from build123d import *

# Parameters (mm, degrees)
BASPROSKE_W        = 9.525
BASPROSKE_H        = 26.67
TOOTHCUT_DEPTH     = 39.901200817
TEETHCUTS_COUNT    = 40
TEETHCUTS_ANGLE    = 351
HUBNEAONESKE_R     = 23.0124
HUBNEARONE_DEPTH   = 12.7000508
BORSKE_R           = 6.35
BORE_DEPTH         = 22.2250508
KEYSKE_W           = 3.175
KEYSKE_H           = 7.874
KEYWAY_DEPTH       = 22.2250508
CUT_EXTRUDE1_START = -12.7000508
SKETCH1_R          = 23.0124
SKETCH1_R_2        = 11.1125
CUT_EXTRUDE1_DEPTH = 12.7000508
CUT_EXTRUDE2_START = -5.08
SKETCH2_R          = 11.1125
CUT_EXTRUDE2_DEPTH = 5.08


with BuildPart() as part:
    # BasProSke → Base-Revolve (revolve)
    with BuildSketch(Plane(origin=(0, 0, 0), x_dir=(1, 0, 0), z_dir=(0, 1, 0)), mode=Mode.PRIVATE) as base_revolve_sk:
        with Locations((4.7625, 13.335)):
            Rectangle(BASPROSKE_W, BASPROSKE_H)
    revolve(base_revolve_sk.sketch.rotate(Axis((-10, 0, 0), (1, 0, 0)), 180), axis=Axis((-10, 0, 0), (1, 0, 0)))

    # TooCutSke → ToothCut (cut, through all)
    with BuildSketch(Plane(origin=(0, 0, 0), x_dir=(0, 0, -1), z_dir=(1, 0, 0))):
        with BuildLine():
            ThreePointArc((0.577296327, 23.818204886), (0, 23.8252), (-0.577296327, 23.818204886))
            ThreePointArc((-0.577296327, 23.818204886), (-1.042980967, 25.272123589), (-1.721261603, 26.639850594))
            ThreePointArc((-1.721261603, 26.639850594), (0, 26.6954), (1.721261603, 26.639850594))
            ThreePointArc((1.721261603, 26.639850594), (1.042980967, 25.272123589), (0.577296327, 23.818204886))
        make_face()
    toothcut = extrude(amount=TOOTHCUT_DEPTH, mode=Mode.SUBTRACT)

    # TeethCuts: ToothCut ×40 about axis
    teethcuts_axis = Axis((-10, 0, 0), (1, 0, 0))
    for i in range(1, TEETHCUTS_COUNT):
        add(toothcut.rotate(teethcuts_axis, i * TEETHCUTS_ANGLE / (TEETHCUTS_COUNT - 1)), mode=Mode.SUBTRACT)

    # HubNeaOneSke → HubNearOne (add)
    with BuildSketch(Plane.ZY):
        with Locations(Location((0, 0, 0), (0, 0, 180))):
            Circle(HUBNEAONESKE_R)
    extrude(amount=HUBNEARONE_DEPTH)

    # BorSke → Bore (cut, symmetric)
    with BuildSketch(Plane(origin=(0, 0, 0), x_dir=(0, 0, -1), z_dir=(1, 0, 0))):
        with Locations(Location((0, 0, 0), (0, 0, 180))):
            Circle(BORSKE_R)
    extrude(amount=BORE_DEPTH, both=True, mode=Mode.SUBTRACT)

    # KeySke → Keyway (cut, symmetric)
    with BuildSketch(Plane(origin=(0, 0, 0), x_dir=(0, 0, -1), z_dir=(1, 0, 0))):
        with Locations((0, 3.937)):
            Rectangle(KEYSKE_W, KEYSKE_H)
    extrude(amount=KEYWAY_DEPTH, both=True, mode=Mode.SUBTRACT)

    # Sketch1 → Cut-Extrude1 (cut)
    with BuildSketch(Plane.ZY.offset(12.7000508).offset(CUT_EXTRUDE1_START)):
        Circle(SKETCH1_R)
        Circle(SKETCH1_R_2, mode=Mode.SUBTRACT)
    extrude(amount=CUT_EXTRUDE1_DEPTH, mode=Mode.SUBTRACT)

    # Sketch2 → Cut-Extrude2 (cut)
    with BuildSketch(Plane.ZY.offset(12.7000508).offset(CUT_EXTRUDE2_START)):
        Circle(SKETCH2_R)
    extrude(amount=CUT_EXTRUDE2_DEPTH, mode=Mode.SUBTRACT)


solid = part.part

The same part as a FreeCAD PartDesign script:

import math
import FreeCAD as App
import Part
import Sketcher
Q = App.Units.Quantity


def add_polygon(sketch, points):
    """Adds a closed chain of lines whose ends are joined by coincident constraints."""
    first, n = sketch.GeometryCount, len(points)
    for a, b in zip(points, points[1:] + points[:1]):
        sketch.addGeometry(Part.LineSegment(App.Vector(*a, 0), App.Vector(*b, 0)), False)
    for i in range(n):
        sketch.addConstraint(Sketcher.Constraint("Coincident", first + i, 2, first + (i + 1) % n, 1))

doc = App.newDocument("Part")
body = doc.addObject("PartDesign::Body", "Body")

# Sketch on XZ plane
sketch1 = doc.addObject("Sketcher::SketchObject", "Sketch")
body.addObject(sketch1)
sketch1.AttachmentSupport = (doc.XZ_Plane, [""])
sketch1.MapMode = "FlatFace"
add_polygon(sketch1, [(0, -27), (0, 0), (10, 0), (10, -27)])  # lines 0-3
sketch1.addConstraint([
    Sketcher.Constraint("Vertical", 0),
    Sketcher.Constraint("Horizontal", 1),
    Sketcher.Constraint("Vertical", 2),
    Sketcher.Constraint("Horizontal", 3),
    Sketcher.Constraint("Coincident", 0, 2, -1, 1),
    Sketcher.Constraint("DistanceY", 0, 1, 0, 2, Q("1.05 in")),
    Sketcher.Constraint("DistanceX", 1, 1, 1, 2, Q("0.375 in")),
])
revolution = doc.addObject("PartDesign::Revolution", "Revolution")
body.addObject(revolution)
revolution.Profile = sketch1
revolution.ReferenceAxis = (sketch1, ["H_Axis"])
revolution.Angle = 360

# Sketch on YZ plane
sketch2 = doc.addObject("Sketcher::SketchObject", "Sketch001")
body.addObject(sketch2)
sketch2.AttachmentSupport = (doc.YZ_Plane, [""])
sketch2.MapMode = "FlatFace"
sketch2.addGeometry([
    Part.ArcOfCircle(Part.Circle(App.Vector(0, 0, 0), App.Vector(0, 0, 1), 23.8), math.radians(-1.39), math.radians(1.39)),
    Part.ArcOfCircle(Part.Circle(App.Vector(21.5, -10.5, 0), App.Vector(0, 0, 1), 10.2), math.radians(59.31), math.radians(76.55)),
    Part.ArcOfCircle(Part.Circle(App.Vector(0, 0, 0), App.Vector(0, 0, 1), 26.7), math.radians(-3.7), math.radians(3.7)),
    Part.ArcOfCircle(Part.Circle(App.Vector(21.5, 10.5, 0), App.Vector(0, 0, 1), 10.2), math.radians(-76.55), math.radians(-59.31)),
], False)
sketch2.addConstraint([
    Sketcher.Constraint("Coincident", 0, 1, 1, 2),
    Sketcher.Constraint("Coincident", 1, 1, 2, 1),
    Sketcher.Constraint("Coincident", 2, 2, 3, 2),
    Sketcher.Constraint("Coincident", 3, 1, 0, 2),
    Sketcher.Constraint("Coincident", 0, 3, -1, 1),
    Sketcher.Constraint("Coincident", 2, 3, -1, 1),
    Sketcher.Constraint("Equal", 1, 3),
    Sketcher.Constraint("Symmetric", 1, 3, 3, 3, -1),
    Sketcher.Constraint("Radius", 1, Q("0.4 in")),
    Sketcher.Constraint("Radius", 0, Q("0.938 in")),
    Sketcher.Constraint("Radius", 2, Q("1.051 in")),
    Sketcher.Constraint("DistanceY", 1, 3, -1, 1, 10.458588),
    Sketcher.Constraint("DistanceX", -1, 1, 1, 1, 26.639851),
])
pocket1 = doc.addObject("PartDesign::Pocket", "Pocket")
body.addObject(pocket1)
pocket1.Profile = sketch2
pocket1.Type = "ThroughAll"
pocket1.Reversed = True
doc.recompute()

polarpattern = doc.addObject("PartDesign::PolarPattern", "PolarPattern")
body.addObject(polarpattern)
polarpattern.Originals = [pocket1]
polarpattern.Axis = (doc.X_Axis, [""])
polarpattern.Angle = 360
polarpattern.Occurrences = 40
body.Tip = polarpattern

# Sketch on YZ plane
sketch3 = doc.addObject("Sketcher::SketchObject", "Sketch002")
body.addObject(sketch3)
sketch3.AttachmentSupport = (doc.YZ_Plane, [""])
sketch3.MapMode = "FlatFace"
sketch3.addGeometry(Part.Circle(App.Vector(0, 0, 0), App.Vector(0, 0, 1), 23), False)
sketch3.addConstraint([
    Sketcher.Constraint("Coincident", 0, 3, -1, 1),
    Sketcher.Constraint("Diameter", 0, Q("1.812 in")),
])
pad1 = doc.addObject("PartDesign::Pad", "Pad")
body.addObject(pad1)
pad1.Profile = sketch3
pad1.Length = 12.700051
pad1.Reversed = True

# Sketch on YZ plane
sketch4 = doc.addObject("Sketcher::SketchObject", "Sketch003")
body.addObject(sketch4)
sketch4.AttachmentSupport = (doc.YZ_Plane, [""])
sketch4.MapMode = "FlatFace"
sketch4.addGeometry(Part.Circle(App.Vector(0, 0, 0), App.Vector(0, 0, 1), 6), False)
sketch4.addConstraint([
    Sketcher.Constraint("Coincident", 0, 3, -1, 1),
    Sketcher.Constraint("Diameter", 0, Q("0.5 in")),
])
pocket2 = doc.addObject("PartDesign::Pocket", "Pocket001")
body.addObject(pocket2)
pocket2.Profile = sketch4
pocket2.Length = 44.450102
pocket2.Midplane = True

# Sketch on YZ plane
sketch5 = doc.addObject("Sketcher::SketchObject", "Sketch004")
body.addObject(sketch5)
sketch5.AttachmentSupport = (doc.YZ_Plane, [""])
sketch5.MapMode = "FlatFace"
add_polygon(sketch5, [(7.9, 1.6), (0, 1.6), (0, -1.6), (7.9, -1.6)])  # lines 0-3
sketch5.addConstraint([
    Sketcher.Constraint("Horizontal", 0),
    Sketcher.Constraint("Vertical", 1),
    Sketcher.Constraint("Horizontal", 2),
    Sketcher.Constraint("Vertical", 3),
    Sketcher.Constraint("Symmetric", 0, 2, 1, 2, -1, 1),
    Sketcher.Constraint("DistanceX", 0, 2, 0, 1, Q("0.31 in")),
    Sketcher.Constraint("DistanceY", 1, 2, 1, 1, Q("0.125 in")),
])
pocket3 = doc.addObject("PartDesign::Pocket", "Pocket002")
body.addObject(pocket3)
pocket3.Profile = sketch5
pocket3.Length = 44.450102
pocket3.Midplane = True

# Sketch on YZ plane
sketch6 = doc.addObject("Sketcher::SketchObject", "Sketch005")
body.addObject(sketch6)
sketch6.AttachmentSupport = (doc.YZ_Plane, [""])
sketch6.MapMode = "FlatFace"
sketch6.addGeometry([
    Part.Circle(App.Vector(0, 0, 0), App.Vector(0, 0, 1), 23),
    Part.Circle(App.Vector(0, 0, 0), App.Vector(0, 0, 1), 11),
], False)
sketch6.addConstraint([
    Sketcher.Constraint("Coincident", 0, 3, -1, 1),
    Sketcher.Constraint("Coincident", 1, 3, -1, 1),
    Sketcher.Constraint("Diameter", 0, Q("1.812 in")),
    Sketcher.Constraint("Diameter", 1, Q("0.875 in")),
])
pocket4 = doc.addObject("PartDesign::Pocket", "Pocket003")
body.addObject(pocket4)
pocket4.Profile = sketch6
pocket4.Length = 12.700051

# Sketch on YZ plane
sketch7 = doc.addObject("Sketcher::SketchObject", "Sketch006")
body.addObject(sketch7)
sketch7.AttachmentSupport = (doc.YZ_Plane, [""])
sketch7.MapMode = "FlatFace"
sketch7.AttachmentOffset = App.Placement(App.Vector(0, 0, -7.620051), App.Rotation())
sketch7.addGeometry(Part.Circle(App.Vector(0, 0, 0), App.Vector(0, 0, 1), 11), False)
sketch7.addConstraint([
    Sketcher.Constraint("Coincident", 0, 3, -1, 1),
    Sketcher.Constraint("Diameter", 0, Q("0.875 in")),
])
pocket5 = doc.addObject("PartDesign::Pocket", "Pocket004")
body.addObject(pocket5)
pocket5.Profile = sketch7
pocket5.Length = Q("0.2 in")

doc.recompute()
